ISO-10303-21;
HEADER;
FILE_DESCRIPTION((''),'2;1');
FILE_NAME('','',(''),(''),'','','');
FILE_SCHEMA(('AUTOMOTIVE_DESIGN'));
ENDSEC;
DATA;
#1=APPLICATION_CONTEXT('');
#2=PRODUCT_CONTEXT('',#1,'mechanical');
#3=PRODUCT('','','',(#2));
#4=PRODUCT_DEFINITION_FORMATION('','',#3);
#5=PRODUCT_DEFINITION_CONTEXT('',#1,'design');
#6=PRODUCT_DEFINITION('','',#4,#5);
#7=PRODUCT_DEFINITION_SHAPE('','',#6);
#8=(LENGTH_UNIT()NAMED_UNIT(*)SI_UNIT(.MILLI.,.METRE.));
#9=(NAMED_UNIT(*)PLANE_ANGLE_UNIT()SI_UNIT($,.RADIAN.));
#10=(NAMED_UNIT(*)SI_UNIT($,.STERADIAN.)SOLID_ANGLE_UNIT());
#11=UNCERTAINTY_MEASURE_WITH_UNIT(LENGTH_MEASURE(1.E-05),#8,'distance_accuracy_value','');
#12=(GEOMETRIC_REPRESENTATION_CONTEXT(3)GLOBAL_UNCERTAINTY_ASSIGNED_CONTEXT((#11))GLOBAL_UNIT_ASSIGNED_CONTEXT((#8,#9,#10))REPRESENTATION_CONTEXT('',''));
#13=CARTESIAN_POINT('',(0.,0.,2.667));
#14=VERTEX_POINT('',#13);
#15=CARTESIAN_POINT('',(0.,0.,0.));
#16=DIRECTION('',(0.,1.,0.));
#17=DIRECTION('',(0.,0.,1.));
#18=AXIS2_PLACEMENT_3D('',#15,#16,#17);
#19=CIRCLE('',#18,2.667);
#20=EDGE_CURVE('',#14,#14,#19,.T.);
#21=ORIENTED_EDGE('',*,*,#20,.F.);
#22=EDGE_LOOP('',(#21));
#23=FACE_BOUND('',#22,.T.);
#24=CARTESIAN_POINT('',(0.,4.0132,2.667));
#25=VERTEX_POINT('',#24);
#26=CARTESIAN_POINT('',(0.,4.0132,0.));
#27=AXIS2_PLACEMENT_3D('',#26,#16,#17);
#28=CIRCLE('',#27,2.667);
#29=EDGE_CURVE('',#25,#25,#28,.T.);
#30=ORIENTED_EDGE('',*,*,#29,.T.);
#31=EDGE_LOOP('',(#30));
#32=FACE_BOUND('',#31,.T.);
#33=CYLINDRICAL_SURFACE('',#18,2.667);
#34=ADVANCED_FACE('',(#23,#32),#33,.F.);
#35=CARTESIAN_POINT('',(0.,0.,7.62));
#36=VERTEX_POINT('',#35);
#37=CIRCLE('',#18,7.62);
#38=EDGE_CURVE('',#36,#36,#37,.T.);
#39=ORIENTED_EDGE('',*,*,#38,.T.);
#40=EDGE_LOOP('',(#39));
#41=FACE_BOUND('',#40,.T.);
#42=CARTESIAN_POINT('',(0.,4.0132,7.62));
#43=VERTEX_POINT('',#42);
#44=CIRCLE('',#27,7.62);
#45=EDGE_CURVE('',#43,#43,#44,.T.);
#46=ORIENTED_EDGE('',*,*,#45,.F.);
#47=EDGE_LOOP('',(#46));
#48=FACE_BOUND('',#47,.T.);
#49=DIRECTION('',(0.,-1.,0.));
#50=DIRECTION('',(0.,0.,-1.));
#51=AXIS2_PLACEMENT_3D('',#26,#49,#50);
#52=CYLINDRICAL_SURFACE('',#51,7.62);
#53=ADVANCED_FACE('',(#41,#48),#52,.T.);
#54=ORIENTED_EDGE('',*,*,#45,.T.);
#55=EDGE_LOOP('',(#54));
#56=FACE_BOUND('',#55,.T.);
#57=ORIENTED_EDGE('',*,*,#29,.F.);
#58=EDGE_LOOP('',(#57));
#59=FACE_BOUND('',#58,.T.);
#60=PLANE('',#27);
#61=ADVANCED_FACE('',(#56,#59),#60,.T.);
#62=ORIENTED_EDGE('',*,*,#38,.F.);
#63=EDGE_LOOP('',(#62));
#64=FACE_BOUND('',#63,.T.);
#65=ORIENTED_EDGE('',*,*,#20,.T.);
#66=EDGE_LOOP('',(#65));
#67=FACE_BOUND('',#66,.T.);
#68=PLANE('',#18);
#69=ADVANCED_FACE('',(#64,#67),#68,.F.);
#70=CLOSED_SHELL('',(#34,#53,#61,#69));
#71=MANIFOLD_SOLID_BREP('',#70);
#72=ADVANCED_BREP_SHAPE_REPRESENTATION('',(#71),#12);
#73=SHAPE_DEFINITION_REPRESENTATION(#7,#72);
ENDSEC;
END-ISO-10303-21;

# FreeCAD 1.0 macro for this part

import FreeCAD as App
import Part
import Sketcher
from FreeCAD import Vector
Q = App.Units.Quantity

doc = App.newDocument("Part")
params = doc.addObject("Spreadsheet::Sheet", "Params")
for row, (alias, value) in enumerate([
    ("sketch1_diameter", "0.6 in"),
    ("pad1_length", "0.158 in"),
    ("sketch2_diameter", "0.21 in"),
    ("pocket1_length", "0.158 in"),
], start=1):
    params.set(f"A{row}", alias)
    params.set(f"B{row}", "=" + value)
    params.setAlias(f"B{row}", alias)

body = doc.addObject("PartDesign::Body", "Body")

# Sketch on XZ plane
sketch1 = body.newObject("Sketcher::SketchObject", "Sketch")
sketch1.AttachmentSupport = (doc.getObject("XZ_Plane"), [""])
sketch1.MapMode = "FlatFace"
sketch1.addGeometry(Part.Circle(Vector(0, 0, 0), Vector(0, 0, 1), 7.62), False)
sketch1.addConstraint(Sketcher.Constraint("Coincident", 0, 3, -1, 1))
sketch1.addConstraint(Sketcher.Constraint("Diameter", 0, Q("0.6 in")))
sketch1.setExpression("Constraints[1]", "Params.sketch1_diameter")
pad1 = body.newObject("PartDesign::Pad", "Pad")
pad1.Profile = sketch1
pad1.setExpression("Length", "Params.pad1_length")
pad1.Reversed = True

# Sketch on XZ plane
sketch2 = body.newObject("Sketcher::SketchObject", "Sketch001")
sketch2.AttachmentSupport = (doc.getObject("XZ_Plane"), [""])
sketch2.MapMode = "FlatFace"
sketch2.AttachmentOffset = App.Placement(Vector(0, 0, -0.158 * 25.4), App.Rotation())
sketch2.addGeometry(Part.Circle(Vector(0, 0, 0), Vector(0, 0, 1), 2.667), False)
sketch2.addConstraint(Sketcher.Constraint("Coincident", 0, 3, -1, 1))
sketch2.addConstraint(Sketcher.Constraint("Diameter", 0, Q("0.21 in")))
sketch2.setExpression("Constraints[1]", "Params.sketch2_diameter")
pocket1 = body.newObject("PartDesign::Pocket", "Pocket")
pocket1.Profile = sketch2
pocket1.setExpression("Length", "Params.pocket1_length")
pocket1.Reversed = True

doc.recompute()
